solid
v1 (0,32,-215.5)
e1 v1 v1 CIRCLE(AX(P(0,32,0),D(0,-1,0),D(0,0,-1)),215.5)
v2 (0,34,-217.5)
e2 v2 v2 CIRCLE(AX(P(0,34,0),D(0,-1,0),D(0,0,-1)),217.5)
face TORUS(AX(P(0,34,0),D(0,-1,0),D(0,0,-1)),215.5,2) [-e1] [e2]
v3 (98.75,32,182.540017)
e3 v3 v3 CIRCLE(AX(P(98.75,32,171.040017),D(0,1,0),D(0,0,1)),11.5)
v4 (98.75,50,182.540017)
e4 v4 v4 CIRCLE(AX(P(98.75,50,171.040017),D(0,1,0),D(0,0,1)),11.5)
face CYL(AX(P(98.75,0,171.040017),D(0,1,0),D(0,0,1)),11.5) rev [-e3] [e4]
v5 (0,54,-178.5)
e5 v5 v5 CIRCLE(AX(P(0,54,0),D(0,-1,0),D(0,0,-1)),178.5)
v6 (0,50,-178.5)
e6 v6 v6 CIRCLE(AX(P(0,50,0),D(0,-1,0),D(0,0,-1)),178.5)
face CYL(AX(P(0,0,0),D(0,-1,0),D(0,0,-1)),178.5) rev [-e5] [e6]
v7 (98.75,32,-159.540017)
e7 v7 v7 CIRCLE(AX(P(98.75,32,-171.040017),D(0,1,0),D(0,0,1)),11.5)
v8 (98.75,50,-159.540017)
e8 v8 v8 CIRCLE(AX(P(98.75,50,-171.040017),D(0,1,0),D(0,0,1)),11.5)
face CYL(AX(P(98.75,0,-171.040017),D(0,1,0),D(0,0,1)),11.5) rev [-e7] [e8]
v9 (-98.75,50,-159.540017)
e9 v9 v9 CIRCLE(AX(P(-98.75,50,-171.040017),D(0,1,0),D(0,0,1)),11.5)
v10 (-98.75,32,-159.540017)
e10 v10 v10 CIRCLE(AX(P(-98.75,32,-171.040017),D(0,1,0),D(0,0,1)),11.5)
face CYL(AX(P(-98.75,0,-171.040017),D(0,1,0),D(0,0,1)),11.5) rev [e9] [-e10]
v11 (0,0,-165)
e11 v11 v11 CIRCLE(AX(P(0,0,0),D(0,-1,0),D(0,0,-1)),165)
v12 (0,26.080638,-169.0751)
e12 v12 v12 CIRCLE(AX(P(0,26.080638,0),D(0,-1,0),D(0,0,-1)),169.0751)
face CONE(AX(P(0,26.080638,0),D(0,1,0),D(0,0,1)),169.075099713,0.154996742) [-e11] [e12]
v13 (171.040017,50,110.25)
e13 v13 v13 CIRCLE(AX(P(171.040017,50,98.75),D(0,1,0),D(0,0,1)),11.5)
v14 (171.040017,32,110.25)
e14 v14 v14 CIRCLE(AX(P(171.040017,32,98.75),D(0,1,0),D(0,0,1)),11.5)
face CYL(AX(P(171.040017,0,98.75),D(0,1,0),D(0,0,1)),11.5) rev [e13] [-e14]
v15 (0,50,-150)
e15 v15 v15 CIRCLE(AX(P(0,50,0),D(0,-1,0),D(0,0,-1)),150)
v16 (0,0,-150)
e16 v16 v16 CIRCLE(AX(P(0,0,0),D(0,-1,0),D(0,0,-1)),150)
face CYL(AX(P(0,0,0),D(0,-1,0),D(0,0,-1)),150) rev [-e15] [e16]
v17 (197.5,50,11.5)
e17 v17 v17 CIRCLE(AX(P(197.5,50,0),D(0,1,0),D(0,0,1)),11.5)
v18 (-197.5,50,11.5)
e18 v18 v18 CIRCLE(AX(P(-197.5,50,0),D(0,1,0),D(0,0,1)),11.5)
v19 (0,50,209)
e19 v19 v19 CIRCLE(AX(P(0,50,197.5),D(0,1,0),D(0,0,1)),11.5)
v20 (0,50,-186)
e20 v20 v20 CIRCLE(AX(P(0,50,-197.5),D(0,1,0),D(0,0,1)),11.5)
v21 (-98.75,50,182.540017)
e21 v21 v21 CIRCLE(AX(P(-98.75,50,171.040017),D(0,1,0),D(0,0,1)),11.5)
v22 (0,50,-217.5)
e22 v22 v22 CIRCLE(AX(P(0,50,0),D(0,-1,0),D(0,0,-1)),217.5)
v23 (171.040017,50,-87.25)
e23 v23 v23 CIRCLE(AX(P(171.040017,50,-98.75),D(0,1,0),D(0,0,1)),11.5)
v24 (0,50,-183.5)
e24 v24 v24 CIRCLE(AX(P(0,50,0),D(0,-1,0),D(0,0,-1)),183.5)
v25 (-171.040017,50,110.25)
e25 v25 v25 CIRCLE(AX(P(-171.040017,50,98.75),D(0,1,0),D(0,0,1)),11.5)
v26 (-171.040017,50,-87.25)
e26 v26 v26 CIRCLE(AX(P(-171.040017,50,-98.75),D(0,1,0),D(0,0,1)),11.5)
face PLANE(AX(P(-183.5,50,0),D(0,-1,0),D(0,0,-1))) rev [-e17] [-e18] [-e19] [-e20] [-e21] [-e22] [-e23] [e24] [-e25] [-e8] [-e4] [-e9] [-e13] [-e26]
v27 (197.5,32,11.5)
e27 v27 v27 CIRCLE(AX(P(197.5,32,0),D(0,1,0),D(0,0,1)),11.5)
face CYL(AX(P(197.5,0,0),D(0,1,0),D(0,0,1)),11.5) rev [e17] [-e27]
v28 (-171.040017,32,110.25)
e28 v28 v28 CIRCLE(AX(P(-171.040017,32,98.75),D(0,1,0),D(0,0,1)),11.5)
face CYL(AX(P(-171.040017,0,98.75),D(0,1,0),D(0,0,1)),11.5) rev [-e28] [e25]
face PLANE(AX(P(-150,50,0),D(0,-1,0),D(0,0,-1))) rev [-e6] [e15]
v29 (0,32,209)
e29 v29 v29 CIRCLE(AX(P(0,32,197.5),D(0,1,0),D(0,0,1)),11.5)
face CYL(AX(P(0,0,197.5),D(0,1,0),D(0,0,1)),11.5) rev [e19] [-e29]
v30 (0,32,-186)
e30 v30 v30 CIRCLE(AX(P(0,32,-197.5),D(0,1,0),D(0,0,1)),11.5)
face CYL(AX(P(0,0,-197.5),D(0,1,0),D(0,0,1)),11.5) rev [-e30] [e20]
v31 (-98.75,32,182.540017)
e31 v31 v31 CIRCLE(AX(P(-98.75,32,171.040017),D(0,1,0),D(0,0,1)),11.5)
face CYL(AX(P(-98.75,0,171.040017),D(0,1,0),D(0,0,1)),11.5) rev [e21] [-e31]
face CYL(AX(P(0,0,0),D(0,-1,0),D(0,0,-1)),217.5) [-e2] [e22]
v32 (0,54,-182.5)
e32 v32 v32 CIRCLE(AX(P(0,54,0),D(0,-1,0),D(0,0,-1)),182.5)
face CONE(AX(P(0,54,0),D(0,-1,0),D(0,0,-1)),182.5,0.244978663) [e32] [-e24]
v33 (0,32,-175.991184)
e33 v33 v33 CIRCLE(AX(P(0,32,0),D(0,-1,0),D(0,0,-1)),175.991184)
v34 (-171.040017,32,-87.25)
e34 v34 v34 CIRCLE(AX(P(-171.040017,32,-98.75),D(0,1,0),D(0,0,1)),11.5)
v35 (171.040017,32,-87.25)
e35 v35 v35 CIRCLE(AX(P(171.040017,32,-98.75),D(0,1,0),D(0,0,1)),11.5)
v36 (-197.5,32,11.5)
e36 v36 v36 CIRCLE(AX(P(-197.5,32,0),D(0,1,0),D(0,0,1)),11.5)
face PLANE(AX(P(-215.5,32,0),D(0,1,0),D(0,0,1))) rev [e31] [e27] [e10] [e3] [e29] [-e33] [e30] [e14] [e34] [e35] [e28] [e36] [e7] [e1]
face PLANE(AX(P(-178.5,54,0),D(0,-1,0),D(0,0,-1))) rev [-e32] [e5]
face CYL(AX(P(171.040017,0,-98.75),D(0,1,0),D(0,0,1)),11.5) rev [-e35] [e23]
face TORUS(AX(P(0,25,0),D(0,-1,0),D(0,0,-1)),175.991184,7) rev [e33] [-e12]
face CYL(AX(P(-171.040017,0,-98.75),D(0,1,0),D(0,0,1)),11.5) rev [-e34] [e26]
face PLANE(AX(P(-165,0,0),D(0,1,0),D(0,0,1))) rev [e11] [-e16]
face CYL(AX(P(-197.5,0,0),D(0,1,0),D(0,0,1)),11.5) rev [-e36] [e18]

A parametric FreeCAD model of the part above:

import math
import FreeCAD as App
import Part
import Sketcher

V = App.Vector

doc = App.newDocument("Part")
params = doc.addObject("Spreadsheet::Sheet", "Params")
for row, (alias, value) in enumerate([
    ("sketch1_radius", "2 mm"),
    ("sketch1_radius2", "7 mm"),
    ("sketch1_width", "4 mm"),
    ("sketch1_width2", "34 mm"),
    ("sketch1_width3", "15 mm"),
    ("revolution_angle", "360 deg"),
    ("sketch2_diameter", "23 mm"),
], start=1):
    params.set(f"A{row}", alias)
    params.set(f"B{row}", "=" + value)
    params.setAlias(f"B{row}", alias)

body = doc.addObject("PartDesign::Body", "Body")

# Sketch on XY plane
sketch1 = doc.addObject("Sketcher::SketchObject", "Sketch")
body.addObject(sketch1)
sketch1.AttachmentSupport = (doc.XY_Plane, [""])
sketch1.MapMode = "FlatFace"
sketch1.addGeometry([
    Part.LineSegment(V(-150, 0, 0), V(-150, 50, 0)),  # 0
    Part.LineSegment(V(-150, 50, 0), V(-178.5, 50, 0)),  # 1
    Part.LineSegment(V(-178.5, 50, 0), V(-178.5, 54, 0)),  # 2
    Part.LineSegment(V(-178.5, 54, 0), V(-182.5, 54, 0)),  # 3
    Part.LineSegment(V(-182.5, 54, 0), V(-183.5, 50, 0)),  # 4
    Part.LineSegment(V(-183.5, 50, 0), V(-217.5, 50, 0)),  # 5
    Part.LineSegment(V(-217.5, 50, 0), V(-217.5, 34, 0)),  # 6
    Part.ArcOfCircle(Part.Circle(V(-215.5, 34, 0), V(0, 0, 1), 2), math.radians(-180), math.radians(-90)),  # 7
    Part.LineSegment(V(-215.5, 32, 0), V(-176, 32, 0)),  # 8
    Part.ArcOfCircle(Part.Circle(V(-176, 25, 0), V(0, 0, 1), 7), math.radians(9), math.radians(90)),  # 9
    Part.LineSegment(V(-169.1, 26.1, 0), V(-165, 0, 0)),  # 10
    Part.LineSegment(V(-165, 0, 0), V(-150, 0, 0)),  # 11
], False)
sketch1.addConstraint([
    Sketcher.Constraint("Coincident", 0, 2, 1, 1),
    Sketcher.Constraint("Coincident", 1, 2, 2, 1),
    Sketcher.Constraint("Coincident", 2, 2, 3, 1),
    Sketcher.Constraint("Coincident", 3, 2, 4, 1),
    Sketcher.Constraint("Coincident", 4, 2, 5, 1),
    Sketcher.Constraint("Coincident", 5, 2, 6, 1),
    Sketcher.Constraint("Tangent", 6, 2, 7, 1),
    Sketcher.Constraint("Tangent", 7, 2, 8, 1),
    Sketcher.Constraint("Tangent", 8, 2, 9, 2),
    Sketcher.Constraint("Tangent", 9, 1, 10, 1),
    Sketcher.Constraint("Coincident", 10, 2, 11, 1),
    Sketcher.Constraint("Coincident", 11, 2, 0, 1),
    Sketcher.Constraint("Vertical", 0),
    Sketcher.Constraint("Horizontal", 1),
    Sketcher.Constraint("Vertical", 2),
    Sketcher.Constraint("Horizontal", 3),
    Sketcher.Constraint("Horizontal", 5),
    Sketcher.Constraint("Vertical", 6),
    Sketcher.Constraint("Horizontal", 8),
    Sketcher.Constraint("Horizontal", 11),
    Sketcher.Constraint("PointOnObject", 10, 2, -1),
    Sketcher.Constraint("Horizontal", 1, 2, 4, 2),
    Sketcher.Constraint("Equal", 3, 2),
    Sketcher.Constraint("Radius", 7, 2.0),
    Sketcher.Constraint("Radius", 9, 7.0),
    Sketcher.Constraint("DistanceX", 3, 2, 3, 1, 4.0),
    Sketcher.Constraint("DistanceX", 5, 2, 5, 1, 34.0),
    Sketcher.Constraint("DistanceX", 11, 1, 11, 2, 15.0),
    Sketcher.Constraint("DistanceY", 0, 1, 0, 2, 50.0),
    Sketcher.Constraint("DistanceY", 6, 2, 6, 1, 16.0),
    Sketcher.Constraint("DistanceX", 1, 2, 1, 1, 28.5),
    Sketcher.Constraint("DistanceX", 0, 2, -1, 1, 150.0),
    Sketcher.Constraint("DistanceX", 7, 3, 1, 2, 37.0),
    Sketcher.Constraint("DistanceX", 9, 1, -1, 1, 169.0751),
])
sketch1.setExpression("Constraints[23]", "Params.sketch1_radius")
sketch1.setExpression("Constraints[24]", "Params.sketch1_radius2")
sketch1.setExpression("Constraints[25]", "Params.sketch1_width")
sketch1.setExpression("Constraints[26]", "Params.sketch1_width2")
sketch1.setExpression("Constraints[27]", "Params.sketch1_width3")
revolution = doc.addObject("PartDesign::Revolution", "Revolution")
body.addObject(revolution)
revolution.Profile = sketch1
revolution.ReferenceAxis = (sketch1, ["V_Axis"])
revolution.setExpression("Angle", "Params.revolution_angle")

# Sketch on XZ plane
sketch2 = doc.addObject("Sketcher::SketchObject", "Sketch001")
body.addObject(sketch2)
sketch2.AttachmentSupport = (doc.XZ_Plane, [""])
sketch2.MapMode = "FlatFace"
sketch2.AttachmentOffset = App.Placement(V(0, 0, -50), App.Rotation())
sketch2.addGeometry([
    Part.Circle(V(-198, 0, 0), V(0, 0, 1), 12),  # 0
    Part.Circle(V(-171, -99, 0), V(0, 0, 1), 12),  # 1
    Part.Circle(V(-99, -171, 0), V(0, 0, 1), 12),  # 2
    Part.Circle(V(0, -198, 0), V(0, 0, 1), 12),  # 3
    Part.Circle(V(99, -171, 0), V(0, 0, 1), 12),  # 4
    Part.Circle(V(171, -99, 0), V(0, 0, 1), 12),  # 5
    Part.Circle(V(198, 0, 0), V(0, 0, 1), 12),  # 6
    Part.Circle(V(171, 99, 0), V(0, 0, 1), 12),  # 7
    Part.Circle(V(99, 171, 0), V(0, 0, 1), 12),  # 8
    Part.Circle(V(0, 198, 0), V(0, 0, 1), 12),  # 9
    Part.Circle(V(-99, 171, 0), V(0, 0, 1), 12),  # 10
    Part.Circle(V(-171, 99, 0), V(0, 0, 1), 12),  # 11
], False)
sketch2.addConstraint([
    Sketcher.Constraint("Equal", 0, 1),
    Sketcher.Constraint("Equal", 1, 2),
    Sketcher.Constraint("Equal", 2, 3),
    Sketcher.Constraint("Equal", 3, 4),
    Sketcher.Constraint("Equal", 4, 5),
    Sketcher.Constraint("Equal", 5, 6),
    Sketcher.Constraint("Equal", 6, 7),
    Sketcher.Constraint("Equal", 7, 8),
    Sketcher.Constraint("Equal", 8, 9),
    Sketcher.Constraint("Equal", 9, 10),
    Sketcher.Constraint("Equal", 10, 11),
    Sketcher.Constraint("Symmetric", 0, 3, 6, 3, -1, 1),
    Sketcher.Constraint("Symmetric", 1, 3, 7, 3, -1, 1),
    Sketcher.Constraint("Symmetric", 2, 3, 8, 3, -1, 1),
    Sketcher.Constraint("Symmetric", 3, 3, 9, 3, -1, 1),
    Sketcher.Constraint("Symmetric", 4, 3, 10, 3, -1, 1),
    Sketcher.Constraint("Symmetric", 5, 3, 11, 3, -1, 1),
    Sketcher.Constraint("Symmetric", 2, 3, 4, 3, -2),
    Sketcher.Constraint("Symmetric", 1, 3, 5, 3, -2),
    Sketcher.Constraint("PointOnObject", 0, 3, -1),
    Sketcher.Constraint("PointOnObject", 3, 3, -2),
    Sketcher.Constraint("Diameter", 0, 23.0),
    Sketcher.Constraint("DistanceX", 0, 3, -1, 1, 197.5),
    Sketcher.Constraint("DistanceY", 3, 3, -1, 1, 197.5),
    Sketcher.Constraint("DistanceX", 2, 3, 4, 3, 197.5),
    Sketcher.Constraint("DistanceY", 5, 3, 7, 3, 197.5),
    Sketcher.Constraint("DistanceX", 1, 3, -1, 1, 171.040017),
    Sketcher.Constraint("DistanceY", 2, 3, -1, 1, 171.040017),
])
sketch2.setExpression("Constraints[21]", "Params.sketch2_diameter")
pocket1 = doc.addObject("PartDesign::Pocket", "Pocket")
body.addObject(pocket1)
pocket1.Profile = sketch2
pocket1.Type = "ThroughAll"
pocket1.Reversed = True

doc.recompute()
